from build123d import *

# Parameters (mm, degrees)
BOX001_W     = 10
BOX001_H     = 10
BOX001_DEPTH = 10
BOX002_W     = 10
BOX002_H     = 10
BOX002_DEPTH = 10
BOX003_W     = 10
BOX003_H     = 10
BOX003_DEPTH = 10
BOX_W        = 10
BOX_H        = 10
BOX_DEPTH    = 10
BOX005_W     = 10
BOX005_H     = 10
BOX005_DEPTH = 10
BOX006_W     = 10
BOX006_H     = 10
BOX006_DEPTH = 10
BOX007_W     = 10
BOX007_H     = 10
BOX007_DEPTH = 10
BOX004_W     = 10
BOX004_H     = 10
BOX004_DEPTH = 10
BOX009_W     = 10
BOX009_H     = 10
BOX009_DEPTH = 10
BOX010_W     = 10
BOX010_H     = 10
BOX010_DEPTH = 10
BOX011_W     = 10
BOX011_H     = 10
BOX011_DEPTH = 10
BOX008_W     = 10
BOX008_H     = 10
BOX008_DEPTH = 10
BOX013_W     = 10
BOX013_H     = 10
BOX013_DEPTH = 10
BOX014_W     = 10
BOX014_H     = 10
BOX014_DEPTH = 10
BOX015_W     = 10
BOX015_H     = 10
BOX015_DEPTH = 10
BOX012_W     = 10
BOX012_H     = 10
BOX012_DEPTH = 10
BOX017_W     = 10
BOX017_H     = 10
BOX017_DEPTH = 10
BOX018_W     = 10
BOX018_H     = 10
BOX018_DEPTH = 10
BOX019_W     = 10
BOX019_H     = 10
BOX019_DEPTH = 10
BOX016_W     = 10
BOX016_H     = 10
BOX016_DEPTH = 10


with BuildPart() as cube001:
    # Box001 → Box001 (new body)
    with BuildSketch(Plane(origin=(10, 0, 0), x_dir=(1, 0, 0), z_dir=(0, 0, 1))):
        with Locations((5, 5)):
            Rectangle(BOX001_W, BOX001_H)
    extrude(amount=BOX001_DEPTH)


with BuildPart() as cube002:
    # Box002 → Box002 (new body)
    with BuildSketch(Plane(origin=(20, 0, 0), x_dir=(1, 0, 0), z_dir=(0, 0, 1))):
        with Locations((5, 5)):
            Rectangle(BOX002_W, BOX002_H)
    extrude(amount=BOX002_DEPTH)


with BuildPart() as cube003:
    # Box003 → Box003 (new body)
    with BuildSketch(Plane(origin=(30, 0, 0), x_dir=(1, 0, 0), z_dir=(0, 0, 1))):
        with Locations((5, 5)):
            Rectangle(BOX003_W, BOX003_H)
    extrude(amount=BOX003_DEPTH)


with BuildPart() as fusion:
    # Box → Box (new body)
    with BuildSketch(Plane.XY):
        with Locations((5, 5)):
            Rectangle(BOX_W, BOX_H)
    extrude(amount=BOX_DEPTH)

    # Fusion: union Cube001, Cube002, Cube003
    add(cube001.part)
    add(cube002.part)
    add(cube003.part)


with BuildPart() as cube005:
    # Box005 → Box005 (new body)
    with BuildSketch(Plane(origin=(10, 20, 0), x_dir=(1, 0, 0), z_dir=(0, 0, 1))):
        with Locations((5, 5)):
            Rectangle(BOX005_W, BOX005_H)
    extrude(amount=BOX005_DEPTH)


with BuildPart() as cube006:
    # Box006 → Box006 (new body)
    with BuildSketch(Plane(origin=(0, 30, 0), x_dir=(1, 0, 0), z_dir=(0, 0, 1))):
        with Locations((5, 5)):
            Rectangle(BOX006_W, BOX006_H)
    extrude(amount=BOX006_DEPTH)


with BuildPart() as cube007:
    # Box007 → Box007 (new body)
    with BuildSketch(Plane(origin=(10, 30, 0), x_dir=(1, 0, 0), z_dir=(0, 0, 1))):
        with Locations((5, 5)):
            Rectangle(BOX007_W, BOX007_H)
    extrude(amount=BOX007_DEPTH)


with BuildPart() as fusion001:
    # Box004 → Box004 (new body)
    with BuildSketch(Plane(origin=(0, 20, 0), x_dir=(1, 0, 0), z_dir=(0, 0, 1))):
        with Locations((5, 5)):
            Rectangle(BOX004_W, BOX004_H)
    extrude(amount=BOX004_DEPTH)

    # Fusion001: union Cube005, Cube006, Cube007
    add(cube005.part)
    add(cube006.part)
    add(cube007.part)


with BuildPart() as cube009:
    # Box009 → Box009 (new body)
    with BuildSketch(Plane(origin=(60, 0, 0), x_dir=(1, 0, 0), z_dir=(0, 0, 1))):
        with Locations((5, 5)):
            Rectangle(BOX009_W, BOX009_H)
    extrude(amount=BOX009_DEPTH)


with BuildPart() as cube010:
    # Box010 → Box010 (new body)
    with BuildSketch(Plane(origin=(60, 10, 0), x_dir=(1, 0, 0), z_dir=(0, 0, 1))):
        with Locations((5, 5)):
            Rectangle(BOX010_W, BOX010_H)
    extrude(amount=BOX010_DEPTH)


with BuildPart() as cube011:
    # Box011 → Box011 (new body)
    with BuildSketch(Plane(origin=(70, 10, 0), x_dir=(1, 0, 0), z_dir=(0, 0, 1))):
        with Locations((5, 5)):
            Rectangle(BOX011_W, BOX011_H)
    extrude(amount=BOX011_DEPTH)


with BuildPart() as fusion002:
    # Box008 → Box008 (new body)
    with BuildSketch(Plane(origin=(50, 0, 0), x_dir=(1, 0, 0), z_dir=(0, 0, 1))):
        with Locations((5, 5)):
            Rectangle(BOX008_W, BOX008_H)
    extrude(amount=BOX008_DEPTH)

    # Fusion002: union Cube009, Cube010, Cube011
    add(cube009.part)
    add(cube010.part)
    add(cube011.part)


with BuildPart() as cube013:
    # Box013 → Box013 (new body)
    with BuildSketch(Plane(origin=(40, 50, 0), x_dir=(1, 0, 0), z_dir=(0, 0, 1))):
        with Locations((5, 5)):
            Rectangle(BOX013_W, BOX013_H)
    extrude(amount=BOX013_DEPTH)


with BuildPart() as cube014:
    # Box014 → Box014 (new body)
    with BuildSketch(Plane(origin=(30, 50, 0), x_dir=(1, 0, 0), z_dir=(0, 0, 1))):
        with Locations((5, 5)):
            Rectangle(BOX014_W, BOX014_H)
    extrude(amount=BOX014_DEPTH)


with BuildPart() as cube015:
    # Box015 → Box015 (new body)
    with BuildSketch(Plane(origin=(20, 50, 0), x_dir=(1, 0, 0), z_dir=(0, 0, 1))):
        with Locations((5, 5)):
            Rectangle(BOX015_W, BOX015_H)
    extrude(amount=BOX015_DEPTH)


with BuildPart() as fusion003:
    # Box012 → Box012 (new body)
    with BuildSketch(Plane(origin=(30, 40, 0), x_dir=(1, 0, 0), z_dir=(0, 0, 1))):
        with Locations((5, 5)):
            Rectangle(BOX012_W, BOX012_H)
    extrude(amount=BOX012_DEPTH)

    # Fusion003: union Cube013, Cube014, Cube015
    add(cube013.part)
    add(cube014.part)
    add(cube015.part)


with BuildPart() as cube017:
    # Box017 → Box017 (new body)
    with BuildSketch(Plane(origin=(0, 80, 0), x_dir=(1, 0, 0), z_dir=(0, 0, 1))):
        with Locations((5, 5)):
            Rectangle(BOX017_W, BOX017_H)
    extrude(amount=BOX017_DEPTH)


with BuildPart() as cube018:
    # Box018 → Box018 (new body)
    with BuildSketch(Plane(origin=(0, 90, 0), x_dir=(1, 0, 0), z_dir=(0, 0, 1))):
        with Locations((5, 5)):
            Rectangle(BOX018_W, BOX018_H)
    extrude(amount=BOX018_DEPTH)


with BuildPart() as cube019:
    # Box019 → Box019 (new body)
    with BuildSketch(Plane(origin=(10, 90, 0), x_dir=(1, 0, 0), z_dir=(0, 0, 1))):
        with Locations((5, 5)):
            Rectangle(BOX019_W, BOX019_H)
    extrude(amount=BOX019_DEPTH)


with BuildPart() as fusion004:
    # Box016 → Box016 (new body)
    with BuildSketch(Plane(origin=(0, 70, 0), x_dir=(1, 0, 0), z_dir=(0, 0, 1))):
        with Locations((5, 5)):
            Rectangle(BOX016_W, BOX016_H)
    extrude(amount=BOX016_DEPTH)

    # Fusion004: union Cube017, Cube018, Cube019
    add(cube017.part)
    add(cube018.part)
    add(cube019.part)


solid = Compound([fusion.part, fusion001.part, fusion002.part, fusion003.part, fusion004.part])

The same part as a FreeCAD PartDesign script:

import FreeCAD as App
import Part
import Sketcher
from FreeCAD import Vector

doc = App.newDocument("Part")
body = doc.addObject("PartDesign::Body", "Body")

# Sketch on XY plane
sketch1 = body.newObject("Sketcher::SketchObject", "Sketch")
sketch1.AttachmentSupport = (doc.getObject("XY_Plane"), [""])
sketch1.MapMode = "FlatFace"
sketch1.addGeometry([
    Part.LineSegment(Vector(10, 10, 0), Vector(10, 0, 0)),
    Part.LineSegment(Vector(10, 0, 0), Vector(20, 0, 0)),
    Part.LineSegment(Vector(20, 0, 0), Vector(20, 10, 0)),
    Part.LineSegment(Vector(20, 10, 0), Vector(10, 10, 0)),
], False)
sketch1.addConstraint([
    Sketcher.Constraint("Coincident", 0, 2, 1, 1),
    Sketcher.Constraint("Coincident", 1, 2, 2, 1),
    Sketcher.Constraint("Coincident", 2, 2, 3, 1),
    Sketcher.Constraint("Coincident", 3, 2, 0, 1),
    Sketcher.Constraint("Vertical", 0),
    Sketcher.Constraint("Horizontal", 1),
    Sketcher.Constraint("Vertical", 2),
    Sketcher.Constraint("Horizontal", 3),
    Sketcher.Constraint("PointOnObject", 0, 2, -1),
    Sketcher.Constraint("Equal", 3, 0),
    Sketcher.Constraint("DistanceX", 1, 1, 1, 2, 10.0),
    Sketcher.Constraint("DistanceX", -1, 1, 0, 2, 10.0),
])
pad1 = body.newObject("PartDesign::Pad", "Pad")
pad1.Profile = sketch1
pad1.Length = 10
body2 = doc.addObject("PartDesign::Body", "Body001")

# Sketch on XY plane
sketch2 = body2.newObject("Sketcher::SketchObject", "Sketch001")
sketch2.AttachmentSupport = (doc.getObject("XY_Plane001"), [""])
sketch2.MapMode = "FlatFace"
sketch2.addGeometry([
    Part.LineSegment(Vector(20, 10, 0), Vector(20, 0, 0)),
    Part.LineSegment(Vector(20, 0, 0), Vector(30, 0, 0)),
    Part.LineSegment(Vector(30, 0, 0), Vector(30, 10, 0)),
    Part.LineSegment(Vector(30, 10, 0), Vector(20, 10, 0)),
], False)
sketch2.addConstraint([
    Sketcher.Constraint("Coincident", 0, 2, 1, 1),
    Sketcher.Constraint("Coincident", 1, 2, 2, 1),
    Sketcher.Constraint("Coincident", 2, 2, 3, 1),
    Sketcher.Constraint("Coincident", 3, 2, 0, 1),
    Sketcher.Constraint("Vertical", 0),
    Sketcher.Constraint("Horizontal", 1),
    Sketcher.Constraint("Vertical", 2),
    Sketcher.Constraint("Horizontal", 3),
    Sketcher.Constraint("PointOnObject", 0, 2, -1),
    Sketcher.Constraint("Equal", 3, 0),
    Sketcher.Constraint("DistanceX", 1, 1, 1, 2, 10.0),
    Sketcher.Constraint("DistanceX", -1, 1, 0, 2, 20.0),
])
pad2 = body2.newObject("PartDesign::Pad", "Pad001")
pad2.Profile = sketch2
pad2.Length = 10
body3 = doc.addObject("PartDesign::Body", "Body002")

# Sketch on XY plane
sketch3 = body3.newObject("Sketcher::SketchObject", "Sketch002")
sketch3.AttachmentSupport = (doc.getObject("XY_Plane002"), [""])
sketch3.MapMode = "FlatFace"
sketch3.addGeometry([
    Part.LineSegment(Vector(30, 10, 0), Vector(30, 0, 0)),
    Part.LineSegment(Vector(30, 0, 0), Vector(40, 0, 0)),
    Part.LineSegment(Vector(40, 0, 0), Vector(40, 10, 0)),
    Part.LineSegment(Vector(40, 10, 0), Vector(30, 10, 0)),
], False)
sketch3.addConstraint([
    Sketcher.Constraint("Coincident", 0, 2, 1, 1),
    Sketcher.Constraint("Coincident", 1, 2, 2, 1),
    Sketcher.Constraint("Coincident", 2, 2, 3, 1),
    Sketcher.Constraint("Coincident", 3, 2, 0, 1),
    Sketcher.Constraint("Vertical", 0),
    Sketcher.Constraint("Horizontal", 1),
    Sketcher.Constraint("Vertical", 2),
    Sketcher.Constraint("Horizontal", 3),
    Sketcher.Constraint("PointOnObject", 0, 2, -1),
    Sketcher.Constraint("Equal", 3, 0),
    Sketcher.Constraint("DistanceX", 1, 1, 1, 2, 10.0),
    Sketcher.Constraint("DistanceX", -1, 1, 0, 2, 30.0),
])
pad3 = body3.newObject("PartDesign::Pad", "Pad002")
pad3.Profile = sketch3
pad3.Length = 10
body4 = doc.addObject("PartDesign::Body", "Body003")

# Sketch on XY plane
sketch4 = body4.newObject("Sketcher::SketchObject", "Sketch003")
sketch4.AttachmentSupport = (doc.getObject("XY_Plane003"), [""])
sketch4.MapMode = "FlatFace"
sketch4.addGeometry([
    Part.LineSegment(Vector(0, 10, 0), Vector(0, 0, 0)),
    Part.LineSegment(Vector(0, 0, 0), Vector(10, 0, 0)),
    Part.LineSegment(Vector(10, 0, 0), Vector(10, 10, 0)),
    Part.LineSegment(Vector(10, 10, 0), Vector(0, 10, 0)),
], False)
sketch4.addConstraint([
    Sketcher.Constraint("Coincident", 0, 2, 1, 1),
    Sketcher.Constraint("Coincident", 1, 2, 2, 1),
    Sketcher.Constraint("Coincident", 2, 2, 3, 1),
    Sketcher.Constraint("Coincident", 3, 2, 0, 1),
    Sketcher.Constraint("Vertical", 0),
    Sketcher.Constraint("Horizontal", 1),
    Sketcher.Constraint("Vertical", 2),
    Sketcher.Constraint("Horizontal", 3),
    Sketcher.Constraint("Coincident", 0, 2, -1, 1),
    Sketcher.Constraint("Equal", 3, 0),
    Sketcher.Constraint("DistanceX", 1, 1, 1, 2, 10.0),
])
pad4 = body4.newObject("PartDesign::Pad", "Pad003")
pad4.Profile = sketch4
pad4.Length = 10
doc.recompute()

boolean = body4.newObject("PartDesign::Boolean", "Boolean")
boolean.Type = "Fuse"
boolean.addObjects([body])
doc.recompute()

boolean2 = body4.newObject("PartDesign::Boolean", "Boolean001")
boolean2.Type = "Fuse"
boolean2.addObjects([body2])
doc.recompute()

boolean3 = body4.newObject("PartDesign::Boolean", "Boolean002")
boolean3.Type = "Fuse"
boolean3.addObjects([body3])
body5 = doc.addObject("PartDesign::Body", "Body004")

# Sketch on XY plane
sketch5 = body5.newObject("Sketcher::SketchObject", "Sketch004")
sketch5.AttachmentSupport = (doc.getObject("XY_Plane004"), [""])
sketch5.MapMode = "FlatFace"
sketch5.addGeometry([
    Part.LineSegment(Vector(10, 30, 0), Vector(10, 20, 0)),
    Part.LineSegment(Vector(10, 20, 0), Vector(20, 20, 0)),
    Part.LineSegment(Vector(20, 20, 0), Vector(20, 30, 0)),
    Part.LineSegment(Vector(20, 30, 0), Vector(10, 30, 0)),
], False)
sketch5.addConstraint([
    Sketcher.Constraint("Coincident", 0, 2, 1, 1),
    Sketcher.Constraint("Coincident", 1, 2, 2, 1),
    Sketcher.Constraint("Coincident", 2, 2, 3, 1),
    Sketcher.Constraint("Coincident", 3, 2, 0, 1),
    Sketcher.Constraint("Vertical", 0),
    Sketcher.Constraint("Horizontal", 1),
    Sketcher.Constraint("Vertical", 2),
    Sketcher.Constraint("Horizontal", 3),
    Sketcher.Constraint("Equal", 3, 0),
    Sketcher.Constraint("DistanceX", 1, 1, 1, 2, 10.0),
    Sketcher.Constraint("DistanceX", -1, 1, 0, 2, 10.0),
    Sketcher.Constraint("DistanceY", -1, 1, 0, 2, 20.0),
])
pad5 = body5.newObject("PartDesign::Pad", "Pad004")
pad5.Profile = sketch5
pad5.Length = 10
body6 = doc.addObject("PartDesign::Body", "Body005")

# Sketch on XY plane
sketch6 = body6.newObject("Sketcher::SketchObject", "Sketch005")
sketch6.AttachmentSupport = (doc.getObject("XY_Plane005"), [""])
sketch6.MapMode = "FlatFace"
sketch6.addGeometry([
    Part.LineSegment(Vector(0, 40, 0), Vector(0, 30, 0)),
    Part.LineSegment(Vector(0, 30, 0), Vector(10, 30, 0)),
    Part.LineSegment(Vector(10, 30, 0), Vector(10, 40, 0)),
    Part.LineSegment(Vector(10, 40, 0), Vector(0, 40, 0)),
], False)
sketch6.addConstraint([
    Sketcher.Constraint("Coincident", 0, 2, 1, 1),
    Sketcher.Constraint("Coincident", 1, 2, 2, 1),
    Sketcher.Constraint("Coincident", 2, 2, 3, 1),
    Sketcher.Constraint("Coincident", 3, 2, 0, 1),
    Sketcher.Constraint("Vertical", 0),
    Sketcher.Constraint("Horizontal", 1),
    Sketcher.Constraint("Vertical", 2),
    Sketcher.Constraint("Horizontal", 3),
    Sketcher.Constraint("PointOnObject", 0, 2, -2),
    Sketcher.Constraint("Equal", 3, 0),
    Sketcher.Constraint("DistanceX", 1, 1, 1, 2, 10.0),
    Sketcher.Constraint("DistanceY", -1, 1, 0, 2, 30.0),
])
pad6 = body6.newObject("PartDesign::Pad", "Pad005")
pad6.Profile = sketch6
pad6.Length = 10
body7 = doc.addObject("PartDesign::Body", "Body006")

# Sketch on XY plane
sketch7 = body7.newObject("Sketcher::SketchObject", "Sketch006")
sketch7.AttachmentSupport = (doc.getObject("XY_Plane006"), [""])
sketch7.MapMode = "FlatFace"
sketch7.addGeometry([
    Part.LineSegment(Vector(10, 40, 0), Vector(10, 30, 0)),
    Part.LineSegment(Vector(10, 30, 0), Vector(20, 30, 0)),
    Part.LineSegment(Vector(20, 30, 0), Vector(20, 40, 0)),
    Part.LineSegment(Vector(20, 40, 0), Vector(10, 40, 0)),
], False)
sketch7.addConstraint([
    Sketcher.Constraint("Coincident", 0, 2, 1, 1),
    Sketcher.Constraint("Coincident", 1, 2, 2, 1),
    Sketcher.Constraint("Coincident", 2, 2, 3, 1),
    Sketcher.Constraint("Coincident", 3, 2, 0, 1),
    Sketcher.Constraint("Vertical", 0),
    Sketcher.Constraint("Horizontal", 1),
    Sketcher.Constraint("Vertical", 2),
    Sketcher.Constraint("Horizontal", 3),
    Sketcher.Constraint("Equal", 3, 0),
    Sketcher.Constraint("DistanceX", 1, 1, 1, 2, 10.0),
    Sketcher.Constraint("DistanceX", -1, 1, 0, 2, 10.0),
    Sketcher.Constraint("DistanceY", -1, 1, 0, 2, 30.0),
])
pad7 = body7.newObject("PartDesign::Pad", "Pad006")
pad7.Profile = sketch7
pad7.Length = 10
body8 = doc.addObject("PartDesign::Body", "Body007")

# Sketch on XY plane
sketch8 = body8.newObject("Sketcher::SketchObject", "Sketch007")
sketch8.AttachmentSupport = (doc.getObject("XY_Plane007"), [""])
sketch8.MapMode = "FlatFace"
sketch8.addGeometry([
    Part.LineSegment(Vector(0, 30, 0), Vector(0, 20, 0)),
    Part.LineSegment(Vector(0, 20, 0), Vector(10, 20, 0)),
    Part.LineSegment(Vector(10, 20, 0), Vector(10, 30, 0)),
    Part.LineSegment(Vector(10, 30, 0), Vector(0, 30, 0)),
], False)
sketch8.addConstraint([
    Sketcher.Constraint("Coincident", 0, 2, 1, 1),
    Sketcher.Constraint("Coincident", 1, 2, 2, 1),
    Sketcher.Constraint("Coincident", 2, 2, 3, 1),
    Sketcher.Constraint("Coincident", 3, 2, 0, 1),
    Sketcher.Constraint("Vertical", 0),
    Sketcher.Constraint("Horizontal", 1),
    Sketcher.Constraint("Vertical", 2),
    Sketcher.Constraint("Horizontal", 3),
    Sketcher.Constraint("PointOnObject", 0, 2, -2),
    Sketcher.Constraint("Equal", 3, 0),
    Sketcher.Constraint("DistanceX", 1, 1, 1, 2, 10.0),
    Sketcher.Constraint("DistanceY", -1, 1, 0, 2, 20.0),
])
pad8 = body8.newObject("PartDesign::Pad", "Pad007")
pad8.Profile = sketch8
pad8.Length = 10
doc.recompute()

boolean4 = body8.newObject("PartDesign::Boolean", "Boolean003")
boolean4.Type = "Fuse"
boolean4.addObjects([body5])
doc.recompute()

boolean5 = body8.newObject("PartDesign::Boolean", "Boolean004")
boolean5.Type = "Fuse"
boolean5.addObjects([body6])
doc.recompute()

boolean6 = body8.newObject("PartDesign::Boolean", "Boolean005")
boolean6.Type = "Fuse"
boolean6.addObjects([body7])
body9 = doc.addObject("PartDesign::Body", "Body008")

# Sketch on XY plane
sketch9 = body9.newObject("Sketcher::SketchObject", "Sketch008")
sketch9.AttachmentSupport = (doc.getObject("XY_Plane008"), [""])
sketch9.MapMode = "FlatFace"
sketch9.addGeometry([
    Part.LineSegment(Vector(60, 10, 0), Vector(60, 0, 0)),
    Part.LineSegment(Vector(60, 0, 0), Vector(70, 0, 0)),
    Part.LineSegment(Vector(70, 0, 0), Vector(70, 10, 0)),
    Part.LineSegment(Vector(70, 10, 0), Vector(60, 10, 0)),
], False)
sketch9.addConstraint([
    Sketcher.Constraint("Coincident", 0, 2, 1, 1),
    Sketcher.Constraint("Coincident", 1, 2, 2, 1),
    Sketcher.Constraint("Coincident", 2, 2, 3, 1),
    Sketcher.Constraint("Coincident", 3, 2, 0, 1),
    Sketcher.Constraint("Vertical", 0),
    Sketcher.Constraint("Horizontal", 1),
    Sketcher.Constraint("Vertical", 2),
    Sketcher.Constraint("Horizontal", 3),
    Sketcher.Constraint("PointOnObject", 0, 2, -1),
    Sketcher.Constraint("Equal", 3, 0),
    Sketcher.Constraint("DistanceX", 1, 1, 1, 2, 10.0),
    Sketcher.Constraint("DistanceX", -1, 1, 0, 2, 60.0),
])
pad9 = body9.newObject("PartDesign::Pad", "Pad008")
pad9.Profile = sketch9
pad9.Length = 10
body10 = doc.addObject("PartDesign::Body", "Body009")

# Sketch on XY plane
sketch10 = body10.newObject("Sketcher::SketchObject", "Sketch009")
sketch10.AttachmentSupport = (doc.getObject("XY_Plane009"), [""])
sketch10.MapMode = "FlatFace"
sketch10.addGeometry([
    Part.LineSegment(Vector(60, 20, 0), Vector(60, 10, 0)),
    Part.LineSegment(Vector(60, 10, 0), Vector(70, 10, 0)),
    Part.LineSegment(Vector(70, 10, 0), Vector(70, 20, 0)),
    Part.LineSegment(Vector(70, 20, 0), Vector(60, 20, 0)),
], False)
sketch10.addConstraint([
    Sketcher.Constraint("Coincident", 0, 2, 1, 1),
    Sketcher.Constraint("Coincident", 1, 2, 2, 1),
    Sketcher.Constraint("Coincident", 2, 2, 3, 1),
    Sketcher.Constraint("Coincident", 3, 2, 0, 1),
    Sketcher.Constraint("Vertical", 0),
    Sketcher.Constraint("Horizontal", 1),
    Sketcher.Constraint("Vertical", 2),
    Sketcher.Constraint("Horizontal", 3),
    Sketcher.Constraint("Equal", 3, 0),
    Sketcher.Constraint("DistanceX", 1, 1, 1, 2, 10.0),
    Sketcher.Constraint("DistanceX", -1, 1, 0, 2, 60.0),
    Sketcher.Constraint("DistanceY", -1, 1, 0, 2, 10.0),
])
pad10 = body10.newObject("PartDesign::Pad", "Pad009")
pad10.Profile = sketch10
pad10.Length = 10
body11 = doc.addObject("PartDesign::Body", "Body010")

# Sketch on XY plane
sketch11 = body11.newObject("Sketcher::SketchObject", "Sketch010")
sketch11.AttachmentSupport = (doc.getObject("XY_Plane010"), [""])
sketch11.MapMode = "FlatFace"
sketch11.addGeometry([
    Part.LineSegment(Vector(70, 20, 0), Vector(70, 10, 0)),
    Part.LineSegment(Vector(70, 10, 0), Vector(80, 10, 0)),
    Part.LineSegment(Vector(80, 10, 0), Vector(80, 20, 0)),
    Part.LineSegment(Vector(80, 20, 0), Vector(70, 20, 0)),
], False)
sketch11.addConstraint([
    Sketcher.Constraint("Coincident", 0, 2, 1, 1),
    Sketcher.Constraint("Coincident", 1, 2, 2, 1),
    Sketcher.Constraint("Coincident", 2, 2, 3, 1),
    Sketcher.Constraint("Coincident", 3, 2, 0, 1),
    Sketcher.Constraint("Vertical", 0),
    Sketcher.Constraint("Horizontal", 1),
    Sketcher.Constraint("Vertical", 2),
    Sketcher.Constraint("Horizontal", 3),
    Sketcher.Constraint("Equal", 3, 0),
    Sketcher.Constraint("DistanceX", 1, 1, 1, 2, 10.0),
    Sketcher.Constraint("DistanceX", -1, 1, 0, 2, 70.0),
    Sketcher.Constraint("DistanceY", -1, 1, 0, 2, 10.0),
])
pad11 = body11.newObject("PartDesign::Pad", "Pad010")
pad11.Profile = sketch11
pad11.Length = 10
body12 = doc.addObject("PartDesign::Body", "Body011")

# Sketch on XY plane
sketch12 = body12.newObject("Sketcher::SketchObject", "Sketch011")
sketch12.AttachmentSupport = (doc.getObject("XY_Plane011"), [""])
sketch12.MapMode = "FlatFace"
sketch12.addGeometry([
    Part.LineSegment(Vector(50, 10, 0), Vector(50, 0, 0)),
    Part.LineSegment(Vector(50, 0, 0), Vector(60, 0, 0)),
    Part.LineSegment(Vector(60, 0, 0), Vector(60, 10, 0)),
    Part.LineSegment(Vector(60, 10, 0), Vector(50, 10, 0)),
], False)
sketch12.addConstraint([
    Sketcher.Constraint("Coincident", 0, 2, 1, 1),
    Sketcher.Constraint("Coincident", 1, 2, 2, 1),
    Sketcher.Constraint("Coincident", 2, 2, 3, 1),
    Sketcher.Constraint("Coincident", 3, 2, 0, 1),
    Sketcher.Constraint("Vertical", 0),
    Sketcher.Constraint("Horizontal", 1),
    Sketcher.Constraint("Vertical", 2),
    Sketcher.Constraint("Horizontal", 3),
    Sketcher.Constraint("PointOnObject", 0, 2, -1),
    Sketcher.Constraint("Equal", 3, 0),
    Sketcher.Constraint("DistanceX", 1, 1, 1, 2, 10.0),
    Sketcher.Constraint("DistanceX", -1, 1, 0, 2, 50.0),
])
pad12 = body12.newObject("PartDesign::Pad", "Pad011")
pad12.Profile = sketch12
pad12.Length = 10
doc.recompute()

boolean7 = body12.newObject("PartDesign::Boolean", "Boolean006")
boolean7.Type = "Fuse"
boolean7.addObjects([body9])
doc.recompute()

boolean8 = body12.newObject("PartDesign::Boolean", "Boolean007")
boolean8.Type = "Fuse"
boolean8.addObjects([body10])
doc.recompute()

boolean9 = body12.newObject("PartDesign::Boolean", "Boolean008")
boolean9.Type = "Fuse"
boolean9.addObjects([body11])
body13 = doc.addObject("PartDesign::Body", "Body012")

# Sketch on XY plane
sketch13 = body13.newObject("Sketcher::SketchObject", "Sketch012")
sketch13.AttachmentSupport = (doc.getObject("XY_Plane012"), [""])
sketch13.MapMode = "FlatFace"
sketch13.addGeometry([
    Part.LineSegment(Vector(40, 60, 0), Vector(40, 50, 0)),
    Part.LineSegment(Vector(40, 50, 0), Vector(50, 50, 0)),
    Part.LineSegment(Vector(50, 50, 0), Vector(50, 60, 0)),
    Part.LineSegment(Vector(50, 60, 0), Vector(40, 60, 0)),
], False)
sketch13.addConstraint([
    Sketcher.Constraint("Coincident", 0, 2, 1, 1),
    Sketcher.Constraint("Coincident", 1, 2, 2, 1),
    Sketcher.Constraint("Coincident", 2, 2, 3, 1),
    Sketcher.Constraint("Coincident", 3, 2, 0, 1),
    Sketcher.Constraint("Vertical", 0),
    Sketcher.Constraint("Horizontal", 1),
    Sketcher.Constraint("Vertical", 2),
    Sketcher.Constraint("Horizontal", 3),
    Sketcher.Constraint("Equal", 3, 0),
    Sketcher.Constraint("DistanceX", 1, 1, 1, 2, 10.0),
    Sketcher.Constraint("DistanceX", -1, 1, 0, 2, 40.0),
    Sketcher.Constraint("DistanceY", -1, 1, 0, 2, 50.0),
])
pad13 = body13.newObject("PartDesign::Pad", "Pad012")
pad13.Profile = sketch13
pad13.Length = 10
body14 = doc.addObject("PartDesign::Body", "Body013")

# Sketch on XY plane
sketch14 = body14.newObject("Sketcher::SketchObject", "Sketch013")
sketch14.AttachmentSupport = (doc.getObject("XY_Plane013"), [""])
sketch14.MapMode = "FlatFace"
sketch14.addGeometry([
    Part.LineSegment(Vector(30, 60, 0), Vector(30, 50, 0)),
    Part.LineSegment(Vector(30, 50, 0), Vector(40, 50, 0)),
    Part.LineSegment(Vector(40, 50, 0), Vector(40, 60, 0)),
    Part.LineSegment(Vector(40, 60, 0), Vector(30, 60, 0)),
], False)
sketch14.addConstraint([
    Sketcher.Constraint("Coincident", 0, 2, 1, 1),
    Sketcher.Constraint("Coincident", 1, 2, 2, 1),
    Sketcher.Constraint("Coincident", 2, 2, 3, 1),
    Sketcher.Constraint("Coincident", 3, 2, 0, 1),
    Sketcher.Constraint("Vertical", 0),
    Sketcher.Constraint("Horizontal", 1),
    Sketcher.Constraint("Vertical", 2),
    Sketcher.Constraint("Horizontal", 3),
    Sketcher.Constraint("Equal", 3, 0),
    Sketcher.Constraint("DistanceX", 1, 1, 1, 2, 10.0),
    Sketcher.Constraint("DistanceX", -1, 1, 0, 2, 30.0),
    Sketcher.Constraint("DistanceY", -1, 1, 0, 2, 50.0),
])
pad14 = body14.newObject("PartDesign::Pad", "Pad013")
pad14.Profile = sketch14
pad14.Length = 10
body15 = doc.addObject("PartDesign::Body", "Body014")

# Sketch on XY plane
sketch15 = body15.newObject("Sketcher::SketchObject", "Sketch014")
sketch15.AttachmentSupport = (doc.getObject("XY_Plane014"), [""])
sketch15.MapMode = "FlatFace"
sketch15.addGeometry([
    Part.LineSegment(Vector(20, 60, 0), Vector(20, 50, 0)),
    Part.LineSegment(Vector(20, 50, 0), Vector(30, 50, 0)),
    Part.LineSegment(Vector(30, 50, 0), Vector(30, 60, 0)),
    Part.LineSegment(Vector(30, 60, 0), Vector(20, 60, 0)),
], False)
sketch15.addConstraint([
    Sketcher.Constraint("Coincident", 0, 2, 1, 1),
    Sketcher.Constraint("Coincident", 1, 2, 2, 1),
    Sketcher.Constraint("Coincident", 2, 2, 3, 1),
    Sketcher.Constraint("Coincident", 3, 2, 0, 1),
    Sketcher.Constraint("Vertical", 0),
    Sketcher.Constraint("Horizontal", 1),
    Sketcher.Constraint("Vertical", 2),
    Sketcher.Constraint("Horizontal", 3),
    Sketcher.Constraint("Equal", 3, 0),
    Sketcher.Constraint("DistanceX", 1, 1, 1, 2, 10.0),
    Sketcher.Constraint("DistanceX", -1, 1, 0, 2, 20.0),
    Sketcher.Constraint("DistanceY", -1, 1, 0, 2, 50.0),
])
pad15 = body15.newObject("PartDesign::Pad", "Pad014")
pad15.Profile = sketch15
pad15.Length = 10
body16 = doc.addObject("PartDesign::Body", "Body015")
body16.AllowCompound = True

# Sketch on XY plane
sketch16 = body16.newObject("Sketcher::SketchObject", "Sketch015")
sketch16.AttachmentSupport = (doc.getObject("XY_Plane015"), [""])
sketch16.MapMode = "FlatFace"
sketch16.addGeometry([
    Part.LineSegment(Vector(30, 50, 0), Vector(30, 40, 0)),
    Part.LineSegment(Vector(30, 40, 0), Vector(40, 40, 0)),
    Part.LineSegment(Vector(40, 40, 0), Vector(40, 50, 0)),
    Part.LineSegment(Vector(40, 50, 0), Vector(30, 50, 0)),
], False)
sketch16.addConstraint([
    Sketcher.Constraint("Coincident", 0, 2, 1, 1),
    Sketcher.Constraint("Coincident", 1, 2, 2, 1),
    Sketcher.Constraint("Coincident", 2, 2, 3, 1),
    Sketcher.Constraint("Coincident", 3, 2, 0, 1),
    Sketcher.Constraint("Vertical", 0),
    Sketcher.Constraint("Horizontal", 1),
    Sketcher.Constraint("Vertical", 2),
    Sketcher.Constraint("Horizontal", 3),
    Sketcher.Constraint("Equal", 3, 0),
    Sketcher.Constraint("DistanceX", 1, 1, 1, 2, 10.0),
    Sketcher.Constraint("DistanceX", -1, 1, 0, 2, 30.0),
    Sketcher.Constraint("DistanceY", -1, 1, 0, 2, 40.0),
])
pad16 = body16.newObject("PartDesign::Pad", "Pad015")
pad16.Profile = sketch16
pad16.Length = 10
doc.recompute()

boolean10 = body16.newObject("PartDesign::Boolean", "Boolean009")
boolean10.Type = "Fuse"
boolean10.addObjects([body13])
doc.recompute()

boolean11 = body16.newObject("PartDesign::Boolean", "Boolean010")
boolean11.Type = "Fuse"
boolean11.addObjects([body14])
doc.recompute()

boolean12 = body16.newObject("PartDesign::Boolean", "Boolean011")
boolean12.Type = "Fuse"
boolean12.addObjects([body15])
body17 = doc.addObject("PartDesign::Body", "Body016")

# Sketch on XY plane
sketch17 = body17.newObject("Sketcher::SketchObject", "Sketch016")
sketch17.AttachmentSupport = (doc.getObject("XY_Plane016"), [""])
sketch17.MapMode = "FlatFace"
sketch17.addGeometry([
    Part.LineSegment(Vector(0, 90, 0), Vector(0, 80, 0)),
    Part.LineSegment(Vector(0, 80, 0), Vector(10, 80, 0)),
    Part.LineSegment(Vector(10, 80, 0), Vector(10, 90, 0)),
    Part.LineSegment(Vector(10, 90, 0), Vector(0, 90, 0)),
], False)
sketch17.addConstraint([
    Sketcher.Constraint("Coincident", 0, 2, 1, 1),
    Sketcher.Constraint("Coincident", 1, 2, 2, 1),
    Sketcher.Constraint("Coincident", 2, 2, 3, 1),
    Sketcher.Constraint("Coincident", 3, 2, 0, 1),
    Sketcher.Constraint("Vertical", 0),
    Sketcher.Constraint("Horizontal", 1),
    Sketcher.Constraint("Vertical", 2),
    Sketcher.Constraint("Horizontal", 3),
    Sketcher.Constraint("PointOnObject", 0, 2, -2),
    Sketcher.Constraint("Equal", 3, 0),
    Sketcher.Constraint("DistanceX", 1, 1, 1, 2, 10.0),
    Sketcher.Constraint("DistanceY", -1, 1, 0, 2, 80.0),
])
pad17 = body17.newObject("PartDesign::Pad", "Pad016")
pad17.Profile = sketch17
pad17.Length = 10
body18 = doc.addObject("PartDesign::Body", "Body017")

# Sketch on XY plane
sketch18 = body18.newObject("Sketcher::SketchObject", "Sketch017")
sketch18.AttachmentSupport = (doc.getObject("XY_Plane017"), [""])
sketch18.MapMode = "FlatFace"
sketch18.addGeometry([
    Part.LineSegment(Vector(0, 100, 0), Vector(0, 90, 0)),
    Part.LineSegment(Vector(0, 90, 0), Vector(10, 90, 0)),
    Part.LineSegment(Vector(10, 90, 0), Vector(10, 100, 0)),
    Part.LineSegment(Vector(10, 100, 0), Vector(0, 100, 0)),
], False)
sketch18.addConstraint([
    Sketcher.Constraint("Coincident", 0, 2, 1, 1),
    Sketcher.Constraint("Coincident", 1, 2, 2, 1),
    Sketcher.Constraint("Coincident", 2, 2, 3, 1),
    Sketcher.Constraint("Coincident", 3, 2, 0, 1),
    Sketcher.Constraint("Vertical", 0),
    Sketcher.Constraint("Horizontal", 1),
    Sketcher.Constraint("Vertical", 2),
    Sketcher.Constraint("Horizontal", 3),
    Sketcher.Constraint("PointOnObject", 0, 2, -2),
    Sketcher.Constraint("Equal", 3, 0),
    Sketcher.Constraint("DistanceX", 1, 1, 1, 2, 10.0),
    Sketcher.Constraint("DistanceY", -1, 1, 0, 2, 90.0),
])
pad18 = body18.newObject("PartDesign::Pad", "Pad017")
pad18.Profile = sketch18
pad18.Length = 10
body19 = doc.addObject("PartDesign::Body", "Body018")

# Sketch on XY plane
sketch19 = body19.newObject("Sketcher::SketchObject", "Sketch018")
sketch19.AttachmentSupport = (doc.getObject("XY_Plane018"), [""])
sketch19.MapMode = "FlatFace"
sketch19.addGeometry([
    Part.LineSegment(Vector(10, 100, 0), Vector(10, 90, 0)),
    Part.LineSegment(Vector(10, 90, 0), Vector(20, 90, 0)),
    Part.LineSegment(Vector(20, 90, 0), Vector(20, 100, 0)),
    Part.LineSegment(Vector(20, 100, 0), Vector(10, 100, 0)),
], False)
sketch19.addConstraint([
    Sketcher.Constraint("Coincident", 0, 2, 1, 1),
    Sketcher.Constraint("Coincident", 1, 2, 2, 1),
    Sketcher.Constraint("Coincident", 2, 2, 3, 1),
    Sketcher.Constraint("Coincident", 3, 2, 0, 1),
    Sketcher.Constraint("Vertical", 0),
    Sketcher.Constraint("Horizontal", 1),
    Sketcher.Constraint("Vertical", 2),
    Sketcher.Constraint("Horizontal", 3),
    Sketcher.Constraint("Equal", 3, 0),
    Sketcher.Constraint("DistanceX", 1, 1, 1, 2, 10.0),
    Sketcher.Constraint("DistanceX", -1, 1, 0, 2, 10.0),
    Sketcher.Constraint("DistanceY", -1, 1, 0, 2, 90.0),
])
pad19 = body19.newObject("PartDesign::Pad", "Pad018")
pad19.Profile = sketch19
pad19.Length = 10
body20 = doc.addObject("PartDesign::Body", "Body019")

# Sketch on XY plane
sketch20 = body20.newObject("Sketcher::SketchObject", "Sketch019")
sketch20.AttachmentSupport = (doc.getObject("XY_Plane019"), [""])
sketch20.MapMode = "FlatFace"
sketch20.addGeometry([
    Part.LineSegment(Vector(0, 80, 0), Vector(0, 70, 0)),
    Part.LineSegment(Vector(0, 70, 0), Vector(10, 70, 0)),
    Part.LineSegment(Vector(10, 70, 0), Vector(10, 80, 0)),
    Part.LineSegment(Vector(10, 80, 0), Vector(0, 80, 0)),
], False)
sketch20.addConstraint([
    Sketcher.Constraint("Coincident", 0, 2, 1, 1),
    Sketcher.Constraint("Coincident", 1, 2, 2, 1),
    Sketcher.Constraint("Coincident", 2, 2, 3, 1),
    Sketcher.Constraint("Coincident", 3, 2, 0, 1),
    Sketcher.Constraint("Vertical", 0),
    Sketcher.Constraint("Horizontal", 1),
    Sketcher.Constraint("Vertical", 2),
    Sketcher.Constraint("Horizontal", 3),
    Sketcher.Constraint("PointOnObject", 0, 2, -2),
    Sketcher.Constraint("Equal", 3, 0),
    Sketcher.Constraint("DistanceX", 1, 1, 1, 2, 10.0),
    Sketcher.Constraint("DistanceY", -1, 1, 0, 2, 70.0),
])
pad20 = body20.newObject("PartDesign::Pad", "Pad019")
pad20.Profile = sketch20
pad20.Length = 10
doc.recompute()

boolean13 = body20.newObject("PartDesign::Boolean", "Boolean012")
boolean13.Type = "Fuse"
boolean13.addObjects([body17])
doc.recompute()

boolean14 = body20.newObject("PartDesign::Boolean", "Boolean013")
boolean14.Type = "Fuse"
boolean14.addObjects([body18])
doc.recompute()

boolean15 = body20.newObject("PartDesign::Boolean", "Boolean014")
boolean15.Type = "Fuse"
boolean15.addObjects([body19])

doc.recompute()
